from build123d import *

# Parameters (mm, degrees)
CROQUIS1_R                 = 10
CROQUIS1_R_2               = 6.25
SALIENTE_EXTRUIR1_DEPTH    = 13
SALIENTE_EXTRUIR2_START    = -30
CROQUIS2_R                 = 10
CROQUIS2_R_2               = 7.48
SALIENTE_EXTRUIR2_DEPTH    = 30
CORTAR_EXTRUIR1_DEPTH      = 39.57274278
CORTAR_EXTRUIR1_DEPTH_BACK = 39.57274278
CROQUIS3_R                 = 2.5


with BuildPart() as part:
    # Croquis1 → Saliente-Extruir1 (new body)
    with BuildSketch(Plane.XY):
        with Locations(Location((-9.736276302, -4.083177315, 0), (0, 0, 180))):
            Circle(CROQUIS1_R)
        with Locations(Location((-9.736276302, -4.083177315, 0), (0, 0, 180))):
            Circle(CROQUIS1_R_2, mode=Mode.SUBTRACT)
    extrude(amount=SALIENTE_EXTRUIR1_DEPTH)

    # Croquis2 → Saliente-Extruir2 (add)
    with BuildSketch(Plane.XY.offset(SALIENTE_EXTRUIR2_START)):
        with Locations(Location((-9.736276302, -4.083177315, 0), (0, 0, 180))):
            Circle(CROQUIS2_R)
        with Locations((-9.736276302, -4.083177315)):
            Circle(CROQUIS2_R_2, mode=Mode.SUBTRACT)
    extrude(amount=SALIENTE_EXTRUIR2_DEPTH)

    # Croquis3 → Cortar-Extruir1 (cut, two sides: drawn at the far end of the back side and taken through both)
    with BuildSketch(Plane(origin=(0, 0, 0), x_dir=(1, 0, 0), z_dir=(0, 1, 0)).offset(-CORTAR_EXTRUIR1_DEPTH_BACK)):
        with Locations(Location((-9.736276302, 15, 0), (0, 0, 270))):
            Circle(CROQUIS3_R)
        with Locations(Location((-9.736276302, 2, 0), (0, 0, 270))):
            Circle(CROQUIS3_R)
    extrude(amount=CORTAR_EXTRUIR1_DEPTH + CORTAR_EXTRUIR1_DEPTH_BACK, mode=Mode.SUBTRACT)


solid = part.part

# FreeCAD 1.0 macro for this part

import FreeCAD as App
import Part
import Sketcher

doc = App.newDocument("Part")
body = doc.addObject("PartDesign::Body", "Body")

# Sketch on XY plane
sketch1 = body.newObject("Sketcher::SketchObject", "Sketch")
sketch1.AttachmentSupport = (doc.getObject("XY_Plane"), [""])
sketch1.MapMode = "FlatFace"
sketch1.addGeometry(Part.Circle(App.Vector(-9.736276, -4.083177, 0), App.Vector(0, 0, 1), 10), False)
sketch1.addGeometry(Part.Circle(App.Vector(-9.736276, -4.083177, 0), App.Vector(0, 0, 1), 6.25), False)
sketch1.addConstraint(Sketcher.Constraint("Coincident", 1, 3, 0, 3))
sketch1.addConstraint(Sketcher.Constraint("Diameter", 0, 20.0))
sketch1.addConstraint(Sketcher.Constraint("Diameter", 1, 12.5))
sketch1.addConstraint(Sketcher.Constraint("DistanceX", 0, 3, -1, 1, 9.736276))
sketch1.addConstraint(Sketcher.Constraint("DistanceY", 0, 3, -1, 1, 4.083177))
pad1 = body.newObject("PartDesign::Pad", "Pad")
pad1.Profile = sketch1
pad1.Length = 13

# Sketch on XY plane
sketch2 = body.newObject("Sketcher::SketchObject", "Sketch001")
sketch2.AttachmentSupport = (doc.getObject("XY_Plane"), [""])
sketch2.MapMode = "FlatFace"
sketch2.AttachmentOffset = App.Placement(App.Vector(0, 0, -30), App.Rotation())
sketch2.addGeometry(Part.Circle(App.Vector(-9.736276, -4.083177, 0), App.Vector(0, 0, 1), 10), False)
sketch2.addGeometry(Part.Circle(App.Vector(-9.736276, -4.083177, 0), App.Vector(0, 0, 1), 7.48), False)
sketch2.addConstraint(Sketcher.Constraint("Coincident", 1, 3, 0, 3))
sketch2.addConstraint(Sketcher.Constraint("Diameter", 0, 20.0))
sketch2.addConstraint(Sketcher.Constraint("Diameter", 1, 14.96))
sketch2.addConstraint(Sketcher.Constraint("DistanceX", 0, 3, -1, 1, 9.736276))
sketch2.addConstraint(Sketcher.Constraint("DistanceY", 0, 3, -1, 1, 4.083177))
pad2 = body.newObject("PartDesign::Pad", "Pad001")
pad2.Profile = sketch2
pad2.Length = 30

# Sketch on XZ plane
sketch3 = body.newObject("Sketcher::SketchObject", "Sketch002")
sketch3.AttachmentSupport = (doc.getObject("XZ_Plane"), [""])
sketch3.MapMode = "FlatFace"
sketch3.addGeometry(Part.Circle(App.Vector(-9.736276, -15, 0), App.Vector(0, 0, 1), 2.5), False)
sketch3.addGeometry(Part.Circle(App.Vector(-9.736276, -2, 0), App.Vector(0, 0, 1), 2.5), False)
sketch3.addConstraint(Sketcher.Constraint("Equal", 0, 1))
sketch3.addConstraint(Sketcher.Constraint("Vertical", 0, 3, 1, 3))
sketch3.addConstraint(Sketcher.Constraint("Diameter", 0, 5.0))
sketch3.addConstraint(Sketcher.Constraint("DistanceY", 0, 3, -1, 1, 15.0))
sketch3.addConstraint(Sketcher.Constraint("DistanceY", 1, 3, -1, 1, 2.0))
sketch3.addConstraint(Sketcher.Constraint("DistanceX", 0, 3, -1, 1, 9.736276))
pocket1 = body.newObject("PartDesign::Pocket", "Pocket")
pocket1.Profile = sketch3
pocket1.Type = "ThroughAll"
pocket1.Midplane = True

doc.recompute()
